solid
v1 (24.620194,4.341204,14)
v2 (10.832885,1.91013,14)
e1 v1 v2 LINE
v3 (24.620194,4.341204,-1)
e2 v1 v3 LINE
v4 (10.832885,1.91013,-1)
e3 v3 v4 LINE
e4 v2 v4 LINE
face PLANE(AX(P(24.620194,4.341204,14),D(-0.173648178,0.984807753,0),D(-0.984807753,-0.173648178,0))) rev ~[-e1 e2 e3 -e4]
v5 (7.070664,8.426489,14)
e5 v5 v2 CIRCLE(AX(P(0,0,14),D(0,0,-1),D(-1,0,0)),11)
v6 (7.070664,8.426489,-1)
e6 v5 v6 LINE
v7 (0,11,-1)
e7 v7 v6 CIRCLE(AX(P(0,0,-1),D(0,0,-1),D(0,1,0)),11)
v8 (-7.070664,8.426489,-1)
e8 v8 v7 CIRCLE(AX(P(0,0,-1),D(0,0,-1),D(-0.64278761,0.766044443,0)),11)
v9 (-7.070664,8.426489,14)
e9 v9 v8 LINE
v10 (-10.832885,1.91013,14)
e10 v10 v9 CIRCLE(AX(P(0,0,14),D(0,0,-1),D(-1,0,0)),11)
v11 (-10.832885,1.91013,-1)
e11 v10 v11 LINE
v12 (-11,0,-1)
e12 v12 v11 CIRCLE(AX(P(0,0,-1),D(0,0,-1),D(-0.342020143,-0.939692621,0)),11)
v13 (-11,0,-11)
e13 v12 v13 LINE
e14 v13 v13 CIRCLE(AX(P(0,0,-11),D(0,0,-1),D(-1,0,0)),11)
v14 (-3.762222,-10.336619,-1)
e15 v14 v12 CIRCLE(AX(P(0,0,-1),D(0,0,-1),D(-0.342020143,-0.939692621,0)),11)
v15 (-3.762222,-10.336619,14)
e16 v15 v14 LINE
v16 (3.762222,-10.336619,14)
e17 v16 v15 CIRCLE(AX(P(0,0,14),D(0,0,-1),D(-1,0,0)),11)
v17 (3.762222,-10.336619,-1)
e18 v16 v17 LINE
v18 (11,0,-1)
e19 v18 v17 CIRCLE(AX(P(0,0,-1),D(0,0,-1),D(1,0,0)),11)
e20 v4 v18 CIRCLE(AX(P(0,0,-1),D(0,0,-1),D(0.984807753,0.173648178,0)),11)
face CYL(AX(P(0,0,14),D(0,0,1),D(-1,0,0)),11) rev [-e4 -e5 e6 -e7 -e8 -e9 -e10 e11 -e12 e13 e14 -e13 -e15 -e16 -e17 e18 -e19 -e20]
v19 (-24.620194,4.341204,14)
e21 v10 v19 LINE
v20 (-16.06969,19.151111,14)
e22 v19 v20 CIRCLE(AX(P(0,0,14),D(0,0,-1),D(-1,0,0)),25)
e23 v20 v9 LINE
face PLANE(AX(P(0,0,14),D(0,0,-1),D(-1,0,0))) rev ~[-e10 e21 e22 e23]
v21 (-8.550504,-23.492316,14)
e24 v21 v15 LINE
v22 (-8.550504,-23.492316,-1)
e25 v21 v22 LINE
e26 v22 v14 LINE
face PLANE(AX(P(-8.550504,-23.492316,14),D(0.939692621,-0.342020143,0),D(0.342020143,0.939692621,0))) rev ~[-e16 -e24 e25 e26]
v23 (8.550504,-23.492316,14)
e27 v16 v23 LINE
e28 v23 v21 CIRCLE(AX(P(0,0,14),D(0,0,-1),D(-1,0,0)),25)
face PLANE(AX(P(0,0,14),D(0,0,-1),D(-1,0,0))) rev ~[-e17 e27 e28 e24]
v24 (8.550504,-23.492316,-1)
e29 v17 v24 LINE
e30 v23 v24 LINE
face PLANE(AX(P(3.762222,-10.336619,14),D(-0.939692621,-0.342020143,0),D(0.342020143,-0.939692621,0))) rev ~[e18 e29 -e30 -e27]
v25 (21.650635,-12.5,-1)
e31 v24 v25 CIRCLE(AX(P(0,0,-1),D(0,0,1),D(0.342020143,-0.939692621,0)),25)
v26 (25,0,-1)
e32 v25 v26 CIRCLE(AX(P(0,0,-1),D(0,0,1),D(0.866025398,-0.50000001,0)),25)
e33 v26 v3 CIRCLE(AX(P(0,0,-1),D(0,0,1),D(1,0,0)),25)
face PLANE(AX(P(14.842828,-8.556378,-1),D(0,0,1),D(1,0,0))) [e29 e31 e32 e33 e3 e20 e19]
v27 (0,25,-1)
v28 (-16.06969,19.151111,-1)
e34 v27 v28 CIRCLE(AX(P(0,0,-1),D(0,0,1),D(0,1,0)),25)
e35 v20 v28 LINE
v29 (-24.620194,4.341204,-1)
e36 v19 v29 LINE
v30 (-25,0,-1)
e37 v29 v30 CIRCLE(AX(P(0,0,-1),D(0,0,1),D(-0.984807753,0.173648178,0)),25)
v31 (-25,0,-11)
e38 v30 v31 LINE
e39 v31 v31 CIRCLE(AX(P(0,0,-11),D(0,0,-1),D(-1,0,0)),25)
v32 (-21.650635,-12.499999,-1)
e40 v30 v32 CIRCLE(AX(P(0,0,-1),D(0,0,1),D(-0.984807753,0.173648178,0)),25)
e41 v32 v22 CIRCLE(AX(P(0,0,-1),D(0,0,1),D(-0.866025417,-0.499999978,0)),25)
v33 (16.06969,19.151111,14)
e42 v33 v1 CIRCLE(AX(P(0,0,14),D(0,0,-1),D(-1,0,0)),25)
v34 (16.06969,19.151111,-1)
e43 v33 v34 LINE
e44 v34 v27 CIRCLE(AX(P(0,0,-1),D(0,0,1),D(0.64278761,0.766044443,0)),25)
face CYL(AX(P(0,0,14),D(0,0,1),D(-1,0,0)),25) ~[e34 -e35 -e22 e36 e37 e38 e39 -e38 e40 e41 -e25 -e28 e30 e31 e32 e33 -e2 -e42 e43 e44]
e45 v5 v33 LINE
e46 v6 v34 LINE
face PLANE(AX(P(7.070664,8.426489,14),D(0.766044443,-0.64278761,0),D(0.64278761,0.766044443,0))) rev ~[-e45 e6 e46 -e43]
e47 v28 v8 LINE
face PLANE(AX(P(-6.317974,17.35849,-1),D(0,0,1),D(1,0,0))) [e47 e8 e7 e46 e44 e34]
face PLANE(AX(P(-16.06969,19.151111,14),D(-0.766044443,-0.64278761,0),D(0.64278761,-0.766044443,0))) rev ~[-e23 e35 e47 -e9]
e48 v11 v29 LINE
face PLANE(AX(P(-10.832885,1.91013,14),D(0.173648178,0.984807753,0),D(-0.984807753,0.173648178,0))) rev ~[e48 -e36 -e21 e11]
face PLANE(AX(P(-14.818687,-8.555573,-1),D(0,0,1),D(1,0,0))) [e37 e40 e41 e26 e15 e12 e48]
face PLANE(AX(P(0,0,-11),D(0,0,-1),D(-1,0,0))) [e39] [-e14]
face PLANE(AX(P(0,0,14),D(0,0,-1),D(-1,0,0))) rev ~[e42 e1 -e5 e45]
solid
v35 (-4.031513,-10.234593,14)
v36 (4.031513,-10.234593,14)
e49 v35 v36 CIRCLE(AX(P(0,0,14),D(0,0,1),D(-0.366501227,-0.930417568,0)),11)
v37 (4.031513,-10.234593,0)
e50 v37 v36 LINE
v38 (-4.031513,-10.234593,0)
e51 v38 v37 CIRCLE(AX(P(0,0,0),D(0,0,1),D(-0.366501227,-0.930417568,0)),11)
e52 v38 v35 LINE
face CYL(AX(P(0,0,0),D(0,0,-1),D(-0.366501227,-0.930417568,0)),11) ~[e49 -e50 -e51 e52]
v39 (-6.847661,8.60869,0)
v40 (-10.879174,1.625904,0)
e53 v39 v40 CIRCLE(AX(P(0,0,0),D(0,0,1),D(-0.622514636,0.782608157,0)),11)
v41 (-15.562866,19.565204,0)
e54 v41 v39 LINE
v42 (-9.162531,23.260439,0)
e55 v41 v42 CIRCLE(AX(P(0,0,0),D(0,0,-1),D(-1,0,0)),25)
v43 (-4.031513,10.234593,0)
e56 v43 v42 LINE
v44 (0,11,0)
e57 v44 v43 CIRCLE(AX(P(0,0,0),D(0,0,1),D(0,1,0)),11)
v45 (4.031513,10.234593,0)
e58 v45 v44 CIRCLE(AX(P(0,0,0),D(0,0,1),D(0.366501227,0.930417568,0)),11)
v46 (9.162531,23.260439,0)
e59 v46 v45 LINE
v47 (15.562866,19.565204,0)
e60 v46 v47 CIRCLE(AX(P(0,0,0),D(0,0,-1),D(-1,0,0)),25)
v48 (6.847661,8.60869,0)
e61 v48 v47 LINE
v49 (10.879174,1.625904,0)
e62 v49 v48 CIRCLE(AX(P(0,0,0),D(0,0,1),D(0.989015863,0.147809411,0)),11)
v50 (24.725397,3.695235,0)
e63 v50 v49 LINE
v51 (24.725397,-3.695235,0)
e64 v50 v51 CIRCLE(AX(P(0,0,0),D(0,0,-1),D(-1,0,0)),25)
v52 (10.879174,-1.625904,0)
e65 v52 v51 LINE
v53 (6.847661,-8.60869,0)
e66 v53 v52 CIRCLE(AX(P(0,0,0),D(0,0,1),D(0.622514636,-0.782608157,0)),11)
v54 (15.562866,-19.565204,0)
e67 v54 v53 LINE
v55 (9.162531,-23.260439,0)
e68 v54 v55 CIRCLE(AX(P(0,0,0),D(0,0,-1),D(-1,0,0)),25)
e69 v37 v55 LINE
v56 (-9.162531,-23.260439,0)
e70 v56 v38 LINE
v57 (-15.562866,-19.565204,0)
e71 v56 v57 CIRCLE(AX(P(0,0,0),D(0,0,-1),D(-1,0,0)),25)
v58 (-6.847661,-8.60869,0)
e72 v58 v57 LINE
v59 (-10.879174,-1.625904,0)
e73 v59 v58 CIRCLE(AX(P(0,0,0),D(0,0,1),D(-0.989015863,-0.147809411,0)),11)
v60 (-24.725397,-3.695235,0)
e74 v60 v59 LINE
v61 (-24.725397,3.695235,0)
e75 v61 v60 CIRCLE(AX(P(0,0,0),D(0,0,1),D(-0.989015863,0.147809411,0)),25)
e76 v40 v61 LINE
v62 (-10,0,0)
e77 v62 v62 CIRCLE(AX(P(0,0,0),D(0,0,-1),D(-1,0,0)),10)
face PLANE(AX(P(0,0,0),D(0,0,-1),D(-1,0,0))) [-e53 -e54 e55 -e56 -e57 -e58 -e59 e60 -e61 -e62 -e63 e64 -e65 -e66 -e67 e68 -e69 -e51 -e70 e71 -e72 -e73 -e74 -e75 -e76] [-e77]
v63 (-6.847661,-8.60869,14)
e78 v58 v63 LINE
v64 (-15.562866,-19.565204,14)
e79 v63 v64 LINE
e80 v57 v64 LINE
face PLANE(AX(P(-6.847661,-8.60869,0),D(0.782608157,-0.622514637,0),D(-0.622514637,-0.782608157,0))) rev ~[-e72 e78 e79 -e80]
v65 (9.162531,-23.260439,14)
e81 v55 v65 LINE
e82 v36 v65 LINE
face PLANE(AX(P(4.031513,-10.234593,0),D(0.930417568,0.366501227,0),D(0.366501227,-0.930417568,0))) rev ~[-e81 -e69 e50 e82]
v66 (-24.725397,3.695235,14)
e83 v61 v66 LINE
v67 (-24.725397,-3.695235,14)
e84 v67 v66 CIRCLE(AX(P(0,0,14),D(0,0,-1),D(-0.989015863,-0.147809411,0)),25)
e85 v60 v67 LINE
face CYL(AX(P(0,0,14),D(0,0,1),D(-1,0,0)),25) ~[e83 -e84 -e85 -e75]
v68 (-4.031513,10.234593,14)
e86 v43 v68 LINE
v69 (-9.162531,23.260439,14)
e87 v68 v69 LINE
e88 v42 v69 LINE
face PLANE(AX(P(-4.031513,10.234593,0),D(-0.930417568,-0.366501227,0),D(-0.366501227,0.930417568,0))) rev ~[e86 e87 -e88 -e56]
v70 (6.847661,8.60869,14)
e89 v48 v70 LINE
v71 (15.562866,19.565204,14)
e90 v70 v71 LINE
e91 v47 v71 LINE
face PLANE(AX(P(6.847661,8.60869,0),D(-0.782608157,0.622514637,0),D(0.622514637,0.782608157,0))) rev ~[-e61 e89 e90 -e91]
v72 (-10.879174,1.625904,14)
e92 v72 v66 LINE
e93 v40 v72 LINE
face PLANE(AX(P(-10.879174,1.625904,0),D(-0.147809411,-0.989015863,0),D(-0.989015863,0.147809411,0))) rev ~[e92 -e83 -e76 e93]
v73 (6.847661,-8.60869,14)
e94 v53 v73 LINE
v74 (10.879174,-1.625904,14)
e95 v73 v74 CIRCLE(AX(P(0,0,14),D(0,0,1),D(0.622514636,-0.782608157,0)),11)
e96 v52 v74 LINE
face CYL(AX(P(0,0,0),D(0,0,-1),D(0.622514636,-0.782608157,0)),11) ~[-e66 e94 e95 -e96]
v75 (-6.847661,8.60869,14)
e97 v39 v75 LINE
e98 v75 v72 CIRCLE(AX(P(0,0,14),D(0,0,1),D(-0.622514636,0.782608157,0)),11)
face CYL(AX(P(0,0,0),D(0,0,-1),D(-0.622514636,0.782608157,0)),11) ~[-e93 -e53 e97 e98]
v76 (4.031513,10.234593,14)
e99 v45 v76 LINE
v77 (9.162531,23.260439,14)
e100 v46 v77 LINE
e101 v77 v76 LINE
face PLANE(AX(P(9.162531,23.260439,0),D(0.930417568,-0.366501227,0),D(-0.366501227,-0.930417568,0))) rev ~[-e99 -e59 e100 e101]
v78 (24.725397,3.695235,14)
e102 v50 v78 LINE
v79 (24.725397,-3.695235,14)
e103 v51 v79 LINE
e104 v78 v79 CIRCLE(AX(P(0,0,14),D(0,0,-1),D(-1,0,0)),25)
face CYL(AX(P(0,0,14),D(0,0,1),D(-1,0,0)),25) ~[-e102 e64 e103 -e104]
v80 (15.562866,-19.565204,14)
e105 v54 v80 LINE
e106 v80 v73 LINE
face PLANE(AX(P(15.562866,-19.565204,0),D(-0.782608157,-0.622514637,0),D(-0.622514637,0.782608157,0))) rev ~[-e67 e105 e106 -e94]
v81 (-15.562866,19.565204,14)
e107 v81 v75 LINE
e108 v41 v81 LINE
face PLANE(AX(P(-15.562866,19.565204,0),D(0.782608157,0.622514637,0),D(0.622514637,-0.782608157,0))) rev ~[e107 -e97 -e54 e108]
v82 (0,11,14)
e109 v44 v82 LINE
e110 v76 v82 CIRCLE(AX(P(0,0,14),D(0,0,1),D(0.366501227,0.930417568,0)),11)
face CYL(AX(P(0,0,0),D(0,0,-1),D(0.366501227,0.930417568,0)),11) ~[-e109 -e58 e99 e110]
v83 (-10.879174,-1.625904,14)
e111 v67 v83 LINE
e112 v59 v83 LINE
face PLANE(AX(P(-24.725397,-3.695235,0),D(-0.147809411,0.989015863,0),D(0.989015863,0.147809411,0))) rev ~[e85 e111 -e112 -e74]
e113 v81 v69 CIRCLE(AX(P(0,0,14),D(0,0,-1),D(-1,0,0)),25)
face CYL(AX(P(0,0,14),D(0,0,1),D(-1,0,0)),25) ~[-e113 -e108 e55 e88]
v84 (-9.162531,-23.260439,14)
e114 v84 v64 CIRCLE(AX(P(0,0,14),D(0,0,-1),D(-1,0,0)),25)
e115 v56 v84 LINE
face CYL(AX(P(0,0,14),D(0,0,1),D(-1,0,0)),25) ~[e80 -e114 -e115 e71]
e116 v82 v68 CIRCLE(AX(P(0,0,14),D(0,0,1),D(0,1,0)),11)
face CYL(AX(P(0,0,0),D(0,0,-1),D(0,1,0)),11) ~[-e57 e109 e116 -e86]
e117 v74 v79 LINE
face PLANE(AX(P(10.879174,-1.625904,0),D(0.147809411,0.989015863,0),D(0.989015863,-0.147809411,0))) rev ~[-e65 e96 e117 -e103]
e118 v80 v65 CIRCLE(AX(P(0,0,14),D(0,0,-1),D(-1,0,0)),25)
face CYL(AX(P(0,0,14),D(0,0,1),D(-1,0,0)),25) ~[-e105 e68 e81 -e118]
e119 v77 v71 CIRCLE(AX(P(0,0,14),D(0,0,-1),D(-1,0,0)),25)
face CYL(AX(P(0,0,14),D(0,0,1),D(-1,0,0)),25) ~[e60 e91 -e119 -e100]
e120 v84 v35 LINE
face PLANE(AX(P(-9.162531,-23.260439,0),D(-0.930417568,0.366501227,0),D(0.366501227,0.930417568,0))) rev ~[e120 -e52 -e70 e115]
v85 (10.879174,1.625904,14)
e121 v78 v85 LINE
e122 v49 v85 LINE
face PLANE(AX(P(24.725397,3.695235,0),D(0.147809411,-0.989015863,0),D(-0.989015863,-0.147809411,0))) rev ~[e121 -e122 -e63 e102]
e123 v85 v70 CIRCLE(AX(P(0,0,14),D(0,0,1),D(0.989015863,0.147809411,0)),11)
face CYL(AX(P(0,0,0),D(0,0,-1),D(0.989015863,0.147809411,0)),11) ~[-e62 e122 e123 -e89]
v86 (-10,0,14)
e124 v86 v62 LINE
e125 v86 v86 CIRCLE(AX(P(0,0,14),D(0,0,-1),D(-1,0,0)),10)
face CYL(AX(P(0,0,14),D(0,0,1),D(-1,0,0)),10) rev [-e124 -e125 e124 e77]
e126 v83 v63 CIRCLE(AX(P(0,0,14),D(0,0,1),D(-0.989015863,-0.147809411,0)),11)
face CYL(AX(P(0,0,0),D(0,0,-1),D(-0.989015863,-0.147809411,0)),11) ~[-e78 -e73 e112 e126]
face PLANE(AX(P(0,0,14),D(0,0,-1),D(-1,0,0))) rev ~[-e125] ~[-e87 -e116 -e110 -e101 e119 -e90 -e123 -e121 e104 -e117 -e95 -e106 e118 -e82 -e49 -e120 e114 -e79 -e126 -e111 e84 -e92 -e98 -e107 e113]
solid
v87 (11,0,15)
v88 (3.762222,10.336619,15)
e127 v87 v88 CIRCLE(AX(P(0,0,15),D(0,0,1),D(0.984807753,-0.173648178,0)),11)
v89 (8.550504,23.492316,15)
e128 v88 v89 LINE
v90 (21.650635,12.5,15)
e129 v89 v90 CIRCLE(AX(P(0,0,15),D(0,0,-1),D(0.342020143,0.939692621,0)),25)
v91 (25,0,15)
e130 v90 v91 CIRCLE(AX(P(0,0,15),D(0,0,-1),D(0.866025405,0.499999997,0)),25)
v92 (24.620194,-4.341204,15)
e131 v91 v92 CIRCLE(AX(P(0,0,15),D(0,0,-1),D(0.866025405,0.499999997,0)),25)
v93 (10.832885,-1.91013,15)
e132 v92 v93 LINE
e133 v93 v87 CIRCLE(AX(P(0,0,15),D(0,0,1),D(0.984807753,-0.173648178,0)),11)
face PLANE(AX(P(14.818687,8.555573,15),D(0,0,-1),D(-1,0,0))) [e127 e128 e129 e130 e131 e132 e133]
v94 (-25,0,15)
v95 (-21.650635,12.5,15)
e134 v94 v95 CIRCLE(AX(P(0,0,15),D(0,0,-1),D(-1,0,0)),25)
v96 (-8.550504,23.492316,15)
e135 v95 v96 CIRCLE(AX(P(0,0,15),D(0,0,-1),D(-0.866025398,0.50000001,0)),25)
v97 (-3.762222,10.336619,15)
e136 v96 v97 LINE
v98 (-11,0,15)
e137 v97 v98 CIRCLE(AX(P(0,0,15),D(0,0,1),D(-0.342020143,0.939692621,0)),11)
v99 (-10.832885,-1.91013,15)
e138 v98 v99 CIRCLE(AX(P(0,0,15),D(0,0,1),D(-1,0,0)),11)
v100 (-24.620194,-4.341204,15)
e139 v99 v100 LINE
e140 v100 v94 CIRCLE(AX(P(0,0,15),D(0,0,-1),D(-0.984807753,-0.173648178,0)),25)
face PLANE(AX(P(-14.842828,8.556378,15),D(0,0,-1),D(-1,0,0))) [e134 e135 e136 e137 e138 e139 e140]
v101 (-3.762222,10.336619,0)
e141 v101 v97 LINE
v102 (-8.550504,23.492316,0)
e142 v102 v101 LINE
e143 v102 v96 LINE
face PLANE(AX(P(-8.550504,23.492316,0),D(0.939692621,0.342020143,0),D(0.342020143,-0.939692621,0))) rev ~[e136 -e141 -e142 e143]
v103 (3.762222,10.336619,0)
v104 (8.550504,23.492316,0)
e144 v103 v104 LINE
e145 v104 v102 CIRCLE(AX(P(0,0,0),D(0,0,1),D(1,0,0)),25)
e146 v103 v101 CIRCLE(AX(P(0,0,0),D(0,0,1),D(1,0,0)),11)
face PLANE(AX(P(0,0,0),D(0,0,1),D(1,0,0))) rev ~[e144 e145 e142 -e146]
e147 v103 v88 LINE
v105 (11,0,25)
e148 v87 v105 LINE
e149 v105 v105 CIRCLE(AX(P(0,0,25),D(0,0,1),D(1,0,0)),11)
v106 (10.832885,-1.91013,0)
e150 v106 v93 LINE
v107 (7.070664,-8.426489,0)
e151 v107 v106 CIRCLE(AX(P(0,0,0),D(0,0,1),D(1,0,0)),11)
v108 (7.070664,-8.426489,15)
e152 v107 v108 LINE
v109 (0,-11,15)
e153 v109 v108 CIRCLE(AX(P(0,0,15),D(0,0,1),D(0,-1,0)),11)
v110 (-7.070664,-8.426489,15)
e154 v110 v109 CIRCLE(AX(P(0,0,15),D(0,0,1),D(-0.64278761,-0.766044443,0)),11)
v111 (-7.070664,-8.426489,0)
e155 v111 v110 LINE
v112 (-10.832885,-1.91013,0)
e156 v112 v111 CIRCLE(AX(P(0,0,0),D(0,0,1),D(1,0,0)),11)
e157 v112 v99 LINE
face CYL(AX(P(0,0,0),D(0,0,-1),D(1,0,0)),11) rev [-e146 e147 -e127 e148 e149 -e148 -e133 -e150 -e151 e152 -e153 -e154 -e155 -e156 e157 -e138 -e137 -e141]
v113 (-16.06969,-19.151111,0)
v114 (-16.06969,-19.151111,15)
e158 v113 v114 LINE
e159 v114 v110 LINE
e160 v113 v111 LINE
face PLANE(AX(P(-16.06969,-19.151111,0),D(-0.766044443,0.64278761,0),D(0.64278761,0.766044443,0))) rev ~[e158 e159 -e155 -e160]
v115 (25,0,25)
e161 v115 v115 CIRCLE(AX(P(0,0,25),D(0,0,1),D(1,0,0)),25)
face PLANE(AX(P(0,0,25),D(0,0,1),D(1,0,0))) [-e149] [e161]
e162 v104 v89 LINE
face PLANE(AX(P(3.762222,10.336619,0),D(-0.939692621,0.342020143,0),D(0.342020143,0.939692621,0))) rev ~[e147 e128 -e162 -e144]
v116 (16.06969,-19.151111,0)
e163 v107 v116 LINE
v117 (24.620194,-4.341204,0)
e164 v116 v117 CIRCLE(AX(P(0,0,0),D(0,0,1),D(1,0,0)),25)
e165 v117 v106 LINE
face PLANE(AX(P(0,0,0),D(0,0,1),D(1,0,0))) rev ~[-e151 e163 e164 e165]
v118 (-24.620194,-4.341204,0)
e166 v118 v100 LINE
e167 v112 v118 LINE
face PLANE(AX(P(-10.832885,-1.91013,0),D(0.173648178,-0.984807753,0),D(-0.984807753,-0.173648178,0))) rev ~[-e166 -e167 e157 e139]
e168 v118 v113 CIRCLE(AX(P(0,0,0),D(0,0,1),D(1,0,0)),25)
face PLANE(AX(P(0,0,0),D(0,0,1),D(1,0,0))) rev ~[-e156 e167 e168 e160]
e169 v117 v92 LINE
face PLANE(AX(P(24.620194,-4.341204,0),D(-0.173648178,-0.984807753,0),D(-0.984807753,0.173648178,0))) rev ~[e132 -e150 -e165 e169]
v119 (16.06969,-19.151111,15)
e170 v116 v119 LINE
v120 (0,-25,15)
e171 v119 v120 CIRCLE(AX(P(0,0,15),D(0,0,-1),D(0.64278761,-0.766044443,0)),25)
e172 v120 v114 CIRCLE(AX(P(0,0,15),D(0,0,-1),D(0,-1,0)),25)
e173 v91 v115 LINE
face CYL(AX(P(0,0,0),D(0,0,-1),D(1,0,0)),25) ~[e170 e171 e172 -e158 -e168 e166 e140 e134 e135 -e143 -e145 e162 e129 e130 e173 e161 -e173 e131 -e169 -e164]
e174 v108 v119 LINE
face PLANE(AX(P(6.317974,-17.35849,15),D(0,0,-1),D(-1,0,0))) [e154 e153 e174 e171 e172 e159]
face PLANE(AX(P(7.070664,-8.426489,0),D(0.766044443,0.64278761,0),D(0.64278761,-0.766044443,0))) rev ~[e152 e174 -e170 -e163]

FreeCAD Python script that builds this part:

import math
import FreeCAD as App
import Part
import Sketcher
from FreeCAD import Vector
Q = App.Units.Quantity

doc = App.newDocument("Part")
body = doc.addObject("PartDesign::Body", "Body")

sketch1 = body.newObject("Sketcher::SketchObject", "Sketch")
sketch1.AttachmentSupport = (doc.getObject("XY_Plane"), [""])
sketch1.MapMode = "FlatFace"
sketch1.addGeometry([
    Part.Circle(Vector(0, 0, 0), Vector(0, 0, 1), 25),
    Part.Circle(Vector(0, 0, 0), Vector(0, 0, 1), 11),
], False)
sketch1.addConstraint([
    Sketcher.Constraint("Coincident", 0, 3, -1, 1),
    Sketcher.Constraint("Coincident", 1, 3, -1, 1),
    Sketcher.Constraint("Diameter", 0, Q("50 mm")),
    Sketcher.Constraint("Diameter", 1, Q("22 mm")),
])
pad1 = body.newObject("PartDesign::Pad", "Pad")
pad1.Profile = sketch1
pad1.Length = 25

sketch2 = body.newObject("Sketcher::SketchObject", "Sketch001")
sketch2.AttachmentSupport = (doc.getObject("XY_Plane"), [""])
sketch2.MapMode = "FlatFace"
sketch2.addGeometry([
    Part.LineSegment(Vector(24.6, -4.3, 0), Vector(10.8, -1.9, 0)),
    Part.ArcOfCircle(Part.Circle(Vector(0, 0, 0), Vector(0, 0, 1), 11), math.radians(-10), math.radians(70)),
    Part.LineSegment(Vector(3.8, 10.3, 0), Vector(8.6, 23.5, 0)),
    Part.ArcOfCircle(Part.Circle(Vector(0, 0, 0), Vector(0, 0, 1), 25), math.radians(30), math.radians(70)),
    Part.ArcOfCircle(Part.Circle(Vector(0, 0, 0), Vector(0, 0, 1), 25), math.radians(-10), math.radians(30)),
    Part.LineSegment(Vector(-8.6, 23.5, 0), Vector(-3.8, 10.3, 0)),
    Part.ArcOfCircle(Part.Circle(Vector(0, 0, 0), Vector(0, 0, 1), 11), math.radians(110), math.radians(180)),
    Part.ArcOfCircle(Part.Circle(Vector(0, 0, 0), Vector(0, 0, 1), 11), math.radians(180), math.radians(190)),
    Part.LineSegment(Vector(-10.8, -1.9, 0), Vector(-24.6, -4.3, 0)),
    Part.ArcOfCircle(Part.Circle(Vector(0, 0, 0), Vector(0, 0, 1), 25), math.radians(-180), math.radians(-170)),
    Part.ArcOfCircle(Part.Circle(Vector(0, 0, 0), Vector(0, 0, 1), 25), math.radians(150), math.radians(180)),
    Part.ArcOfCircle(Part.Circle(Vector(0, 0, 0), Vector(0, 0, 1), 25), math.radians(110), math.radians(150)),
    Part.ArcOfCircle(Part.Circle(Vector(0, 0, 0), Vector(0, 0, 1), 11), math.radians(-90), math.radians(-50)),
    Part.LineSegment(Vector(7.1, -8.4, 0), Vector(16.1, -19.2, 0)),
    Part.ArcOfCircle(Part.Circle(Vector(0, 0, 0), Vector(0, 0, 1), 25), math.radians(-90), math.radians(-50)),
    Part.ArcOfCircle(Part.Circle(Vector(0, 0, 0), Vector(0, 0, 1), 25), math.radians(-130), math.radians(-90)),
    Part.LineSegment(Vector(-16.1, -19.2, 0), Vector(-7.1, -8.4, 0)),
    Part.ArcOfCircle(Part.Circle(Vector(0, 0, 0), Vector(0, 0, 1), 11), math.radians(-130), math.radians(-90)),
], False)
sketch2.addConstraint([
    Sketcher.Constraint("Coincident", 0, 2, 1, 1),
    Sketcher.Constraint("Coincident", 1, 2, 2, 1),
    Sketcher.Constraint("Coincident", 2, 2, 3, 2),
    Sketcher.Constraint("Tangent", 3, 1, 4, 2),
    Sketcher.Constraint("Coincident", 4, 1, 0, 1),
    Sketcher.Constraint("Coincident", 5, 2, 6, 1),
    Sketcher.Constraint("Tangent", 6, 2, 7, 1),
    Sketcher.Constraint("Coincident", 7, 2, 8, 1),
    Sketcher.Constraint("Coincident", 8, 2, 9, 2),
    Sketcher.Constraint("Tangent", 9, 1, 10, 2),
    Sketcher.Constraint("Tangent", 10, 1, 11, 2),
    Sketcher.Constraint("Coincident", 11, 1, 5, 1),
    Sketcher.Constraint("Coincident", 12, 2, 13, 1),
    Sketcher.Constraint("Coincident", 13, 2, 14, 2),
    Sketcher.Constraint("Tangent", 14, 1, 15, 2),
    Sketcher.Constraint("Coincident", 15, 1, 16, 1),
    Sketcher.Constraint("Coincident", 16, 2, 17, 1),
    Sketcher.Constraint("Tangent", 17, 2, 12, 1),
    Sketcher.Constraint("Coincident", 1, 3, -1, 1),
    Sketcher.Constraint("Coincident", 3, 3, -1, 1),
    Sketcher.Constraint("Coincident", 6, 3, -1, 1),
    Sketcher.Constraint("Coincident", 9, 3, -1, 1),
    Sketcher.Constraint("Coincident", 11, 3, -1, 1),
    Sketcher.Constraint("Coincident", 12, 3, -1, 1),
    Sketcher.Constraint("Coincident", 14, 3, -1, 1),
    Sketcher.Constraint("Equal", 3, 4),
    Sketcher.Constraint("Equal", 1, 6),
    Sketcher.Constraint("Equal", 6, 7),
    Sketcher.Constraint("Equal", 4, 9),
    Sketcher.Constraint("Equal", 7, 12),
    Sketcher.Constraint("Equal", 11, 14),
    Sketcher.Constraint("Equal", 14, 15),
    Sketcher.Constraint("Equal", 12, 17),
    Sketcher.Constraint("PointOnObject", 6, 2, -1),
    Sketcher.Constraint("PointOnObject", 9, 1, -1),
    Sketcher.Constraint("PointOnObject", 14, 1, -2),
    Sketcher.Constraint("PointOnObject", 17, 2, -2),
    Sketcher.Constraint("Horizontal", 1, 2, 5, 2),
    Sketcher.Constraint("Horizontal", 0, 2, 7, 2),
    Sketcher.Constraint("Horizontal", 4, 1, 8, 2),
    Sketcher.Constraint("Horizontal", 3, 1, 10, 1),
    Sketcher.Constraint("Horizontal", 2, 2, 11, 1),
    Sketcher.Constraint("Horizontal", 13, 2, 15, 1),
    Sketcher.Constraint("Horizontal", 12, 2, 16, 2),
    Sketcher.Constraint("Radius", 1, Q("11 mm")),
    Sketcher.Constraint("Radius", 3, Q("25 mm")),
    Sketcher.Constraint("Angle", 0, Q("170 deg")),
    Sketcher.Constraint("Angle", 2, Q("70 deg")),
    Sketcher.Constraint("Angle", 13, Q("-50 deg")),
    Sketcher.Constraint("DistanceY", -1, 1, 3, 1, Q("12.5 mm")),
    Sketcher.Constraint("DistanceY", 0, 2, -1, 1, Q("1.91013 mm")),
    Sketcher.Constraint("DistanceX", -1, 1, 1, 2, Q("3.762222 mm")),
    Sketcher.Constraint("DistanceY", 12, 2, -1, 1, Q("8.426489 mm")),
])
pocket1 = body.newObject("PartDesign::Pocket", "Pocket")
pocket1.Profile = sketch2
pocket1.Length = 15
pocket1.Reversed = True
body2 = doc.addObject("PartDesign::Body", "Body001")

sketch3 = body2.newObject("Sketcher::SketchObject", "Sketch002")
sketch3.AttachmentSupport = (doc.getObject("XY_Plane001"), [""])
sketch3.MapMode = "FlatFace"
sketch3.AttachmentOffset = App.Placement(Vector(0, 0, 14), App.Rotation())
sketch3.addGeometry([
    Part.Circle(Vector(0, 0, 0), Vector(0, 0, 1), 25),
    Part.Circle(Vector(0, 0, 0), Vector(0, 0, 1), 11),
], False)
sketch3.addConstraint([
    Sketcher.Constraint("Coincident", 0, 3, -1, 1),
    Sketcher.Constraint("Coincident", 1, 3, -1, 1),
    Sketcher.Constraint("Diameter", 0, Q("50 mm")),
    Sketcher.Constraint("Diameter", 1, Q("22 mm")),
])
pad2 = body2.newObject("PartDesign::Pad", "Pad001")
pad2.Profile = sketch3
pad2.Length = 25
pad2.Reversed = True

sketch4 = body2.newObject("Sketcher::SketchObject", "Sketch003")
sketch4.AttachmentSupport = (doc.getObject("XY_Plane001"), [""])
sketch4.MapMode = "FlatFace"
sketch4.AttachmentOffset = App.Placement(Vector(0, 0, 14), App.Rotation())
sketch4.addGeometry([
    Part.LineSegment(Vector(-16.1, 19.2, 0), Vector(-7.1, 8.4, 0)),
    Part.ArcOfCircle(Part.Circle(Vector(0, 0, 0), Vector(0, 0, 1), 11), math.radians(90), math.radians(130)),
    Part.ArcOfCircle(Part.Circle(Vector(0, 0, 0), Vector(0, 0, 1), 11), math.radians(50), math.radians(90)),
    Part.LineSegment(Vector(7.1, 8.4, 0), Vector(16.1, 19.2, 0)),
    Part.ArcOfCircle(Part.Circle(Vector(0, 0, 0), Vector(0, 0, 1), 25), math.radians(50), math.radians(90)),
    Part.ArcOfCircle(Part.Circle(Vector(0, 0, 0), Vector(0, 0, 1), 25), math.radians(90), math.radians(130)),
    Part.LineSegment(Vector(24.6, 4.3, 0), Vector(10.8, 1.9, 0)),
    Part.ArcOfCircle(Part.Circle(Vector(0, 0, 0), Vector(0, 0, 1), 11), math.radians(0), math.radians(10)),
    Part.ArcOfCircle(Part.Circle(Vector(0, 0, 0), Vector(0, 0, 1), 11), math.radians(-70), math.radians(0)),
    Part.LineSegment(Vector(3.8, -10.3, 0), Vector(8.6, -23.5, 0)),
    Part.ArcOfCircle(Part.Circle(Vector(0, 0, 0), Vector(0, 0, 1), 25), math.radians(-70), math.radians(-30)),
    Part.ArcOfCircle(Part.Circle(Vector(0, 0, 0), Vector(0, 0, 1), 25), math.radians(-30), math.radians(0)),
    Part.ArcOfCircle(Part.Circle(Vector(0, 0, 0), Vector(0, 0, 1), 25), math.radians(0), math.radians(10)),
    Part.LineSegment(Vector(-8.6, -23.5, 0), Vector(-3.8, -10.3, 0)),
    Part.ArcOfCircle(Part.Circle(Vector(0, 0, 0), Vector(0, 0, 1), 11), math.radians(170), math.radians(250)),
    Part.LineSegment(Vector(-10.8, 1.9, 0), Vector(-24.6, 4.3, 0)),
    Part.ArcOfCircle(Part.Circle(Vector(0, 0, 0), Vector(0, 0, 1), 25), math.radians(170), math.radians(210)),
    Part.ArcOfCircle(Part.Circle(Vector(0, 0, 0), Vector(0, 0, 1), 25), math.radians(-150), math.radians(-110)),
], False)
sketch4.addConstraint([
    Sketcher.Constraint("Coincident", 0, 2, 1, 2),
    Sketcher.Constraint("Tangent", 1, 1, 2, 2),
    Sketcher.Constraint("Coincident", 2, 1, 3, 1),
    Sketcher.Constraint("Coincident", 3, 2, 4, 1),
    Sketcher.Constraint("Tangent", 4, 2, 5, 1),
    Sketcher.Constraint("Coincident", 5, 2, 0, 1),
    Sketcher.Constraint("Coincident", 6, 2, 7, 2),
    Sketcher.Constraint("Tangent", 7, 1, 8, 2),
    Sketcher.Constraint("Coincident", 8, 1, 9, 1),
    Sketcher.Constraint("Coincident", 9, 2, 10, 1),
    Sketcher.Constraint("Tangent", 10, 2, 11, 1),
    Sketcher.Constraint("Tangent", 11, 2, 12, 1),
    Sketcher.Constraint("Coincident", 12, 2, 6, 1),
    Sketcher.Constraint("Coincident", 13, 2, 14, 2),
    Sketcher.Constraint("Coincident", 14, 1, 15, 1),
    Sketcher.Constraint("Coincident", 15, 2, 16, 1),
    Sketcher.Constraint("Tangent", 16, 2, 17, 1),
    Sketcher.Constraint("Coincident", 17, 2, 13, 1),
    Sketcher.Constraint("Coincident", 1, 3, -1, 1),
    Sketcher.Constraint("Coincident", 4, 3, -1, 1),
    Sketcher.Constraint("Coincident", 7, 3, -1, 1),
    Sketcher.Constraint("Coincident", 10, 3, -1, 1),
    Sketcher.Constraint("Coincident", 12, 3, -1, 1),
    Sketcher.Constraint("Coincident", 14, 3, -1, 1),
    Sketcher.Constraint("Coincident", 16, 3, -1, 1),
    Sketcher.Constraint("Equal", 1, 2),
    Sketcher.Constraint("Equal", 4, 5),
    Sketcher.Constraint("Equal", 2, 7),
    Sketcher.Constraint("Equal", 7, 8),
    Sketcher.Constraint("Equal", 5, 10),
    Sketcher.Constraint("Equal", 8, 14),
    Sketcher.Constraint("Equal", 12, 16),
    Sketcher.Constraint("Equal", 16, 17),
    Sketcher.Constraint("PointOnObject", 1, 1, -2),
    Sketcher.Constraint("PointOnObject", 4, 2, -2),
    Sketcher.Constraint("PointOnObject", 7, 1, -1),
    Sketcher.Constraint("PointOnObject", 11, 2, -1),
    Sketcher.Constraint("Horizontal", 0, 2, 2, 1),
    Sketcher.Constraint("Horizontal", 3, 2, 5, 2),
    Sketcher.Constraint("Horizontal", 8, 1, 13, 2),
    Sketcher.Constraint("Horizontal", 6, 2, 14, 1),
    Sketcher.Constraint("Horizontal", 12, 2, 15, 2),
    Sketcher.Constraint("Horizontal", 10, 2, 16, 2),
    Sketcher.Constraint("Horizontal", 9, 2, 17, 2),
    Sketcher.Constraint("Radius", 1, Q("11 mm")),
    Sketcher.Constraint("Radius", 4, Q("25 mm")),
    Sketcher.Constraint("Angle", 0, Q("-50 deg")),
    Sketcher.Constraint("Angle", 6, Q("-170 deg")),
    Sketcher.Constraint("Angle", 9, Q("-70 deg")),
    Sketcher.Constraint("DistanceY", 10, 2, -1, 1, Q("12.5 mm")),
    Sketcher.Constraint("DistanceY", -1, 1, 0, 2, Q("8.426489 mm")),
    Sketcher.Constraint("DistanceY", -1, 1, 6, 2, Q("1.91013 mm")),
    Sketcher.Constraint("DistanceX", -1, 1, 8, 1, Q("3.762222 mm")),
])
pocket2 = body2.newObject("PartDesign::Pocket", "Pocket001")
pocket2.Profile = sketch4
pocket2.Length = 15
body3 = doc.addObject("PartDesign::Body", "Body002")

sketch5 = body3.newObject("Sketcher::SketchObject", "Sketch004")
sketch5.AttachmentSupport = (doc.getObject("XY_Plane002"), [""])
sketch5.MapMode = "FlatFace"
sketch5.AttachmentOffset = App.Placement(Vector(0, 0, 14), App.Rotation())
sketch5.addGeometry([
    Part.Circle(Vector(0, 0, 0), Vector(0, 0, 1), 25),
    Part.Circle(Vector(0, 0, 0), Vector(0, 0, 1), 10),
], False)
sketch5.addConstraint([
    Sketcher.Constraint("Coincident", 0, 3, -1, 1),
    Sketcher.Constraint("Coincident", 1, 3, -1, 1),
    Sketcher.Constraint("Diameter", 0, Q("50 mm")),
    Sketcher.Constraint("Diameter", 1, Q("20 mm")),
])
pad3 = body3.newObject("PartDesign::Pad", "Pad002")
pad3.Profile = sketch5
pad3.Length = 14
pad3.Reversed = True

sketch6 = body3.newObject("Sketcher::SketchObject", "Sketch005")
sketch6.AttachmentSupport = (doc.getObject("XY_Plane002"), [""])
sketch6.MapMode = "FlatFace"
sketch6.addGeometry([
    Part.LineSegment(Vector(24.7, 3.7, 0), Vector(10.9, 1.6, 0)),
    Part.ArcOfCircle(Part.Circle(Vector(0, 0, 0), Vector(0, 0, 1), 11), math.radians(8), math.radians(52)),
    Part.LineSegment(Vector(6.8, 8.6, 0), Vector(15.6, 19.6, 0)),
    Part.ArcOfCircle(Part.Circle(Vector(0, 0, 0), Vector(0, 0, 1), 25), math.radians(30), math.radians(52)),
    Part.ArcOfCircle(Part.Circle(Vector(0, 0, 0), Vector(0, 0, 1), 25), math.radians(8), math.radians(30)),
    Part.LineSegment(Vector(9.2, 23.3, 0), Vector(4, 10.2, 0)),
    Part.ArcOfCircle(Part.Circle(Vector(0, 0, 0), Vector(0, 0, 1), 11), math.radians(69), math.radians(90)),
    Part.ArcOfCircle(Part.Circle(Vector(0, 0, 0), Vector(0, 0, 1), 11), math.radians(90), math.radians(111)),
    Part.LineSegment(Vector(-4, 10.2, 0), Vector(-9.2, 23.3, 0)),
    Part.ArcOfCircle(Part.Circle(Vector(0, 0, 0), Vector(0, 0, 1), 25), math.radians(90), math.radians(111)),
    Part.ArcOfCircle(Part.Circle(Vector(0, 0, 0), Vector(0, 0, 1), 25), math.radians(69), math.radians(90)),
    Part.LineSegment(Vector(-15.6, 19.6, 0), Vector(-6.8, 8.6, 0)),
    Part.ArcOfCircle(Part.Circle(Vector(0, 0, 0), Vector(0, 0, 1), 11), math.radians(128), math.radians(172)),
    Part.LineSegment(Vector(-10.9, 1.6, 0), Vector(-24.7, 3.7, 0)),
    Part.ArcOfCircle(Part.Circle(Vector(0, 0, 0), Vector(0, 0, 1), 25), math.radians(150), math.radians(171)),
    Part.ArcOfCircle(Part.Circle(Vector(0, 0, 0), Vector(0, 0, 1), 25), math.radians(128), math.radians(150)),
    Part.LineSegment(Vector(-24.7, -3.7, 0), Vector(-10.9, -1.6, 0)),
    Part.ArcOfCircle(Part.Circle(Vector(0, 0, 0), Vector(0, 0, 1), 11), math.radians(-172), math.radians(-128)),
    Part.LineSegment(Vector(-6.8, -8.6, 0), Vector(-15.6, -19.6, 0)),
    Part.ArcOfCircle(Part.Circle(Vector(0, 0, 0), Vector(0, 0, 1), 25), math.radians(-150), math.radians(-128)),
    Part.ArcOfCircle(Part.Circle(Vector(0, 0, 0), Vector(0, 0, 1), 25), math.radians(-172), math.radians(-150)),
    Part.LineSegment(Vector(-9.2, -23.3, 0), Vector(-4, -10.2, 0)),
    Part.ArcOfCircle(Part.Circle(Vector(0, 0, 0), Vector(0, 0, 1), 11), math.radians(-111), math.radians(-69)),
    Part.LineSegment(Vector(4, -10.2, 0), Vector(9.2, -23.3, 0)),
    Part.ArcOfCircle(Part.Circle(Vector(0, 0, 0), Vector(0, 0, 1), 25), math.radians(-90), math.radians(-69)),
    Part.ArcOfCircle(Part.Circle(Vector(0, 0, 0), Vector(0, 0, 1), 25), math.radians(-111), math.radians(-90)),
    Part.LineSegment(Vector(15.6, -19.6, 0), Vector(6.8, -8.6, 0)),
    Part.ArcOfCircle(Part.Circle(Vector(0, 0, 0), Vector(0, 0, 1), 11), math.radians(-52), math.radians(-8)),
    Part.LineSegment(Vector(10.9, -1.6, 0), Vector(24.7, -3.7, 0)),
    Part.ArcOfCircle(Part.Circle(Vector(0, 0, 0), Vector(0, 0, 1), 25), math.radians(-30), math.radians(-8)),
    Part.ArcOfCircle(Part.Circle(Vector(0, 0, 0), Vector(0, 0, 1), 25), math.radians(-52), math.radians(-30)),
], False)
sketch6.addConstraint([
    Sketcher.Constraint("Coincident", 0, 2, 1, 1),
    Sketcher.Constraint("Coincident", 1, 2, 2, 1),
    Sketcher.Constraint("Coincident", 2, 2, 3, 2),
    Sketcher.Constraint("Tangent", 3, 1, 4, 2),
    Sketcher.Constraint("Coincident", 4, 1, 0, 1),
    Sketcher.Constraint("Coincident", 5, 2, 6, 1),
    Sketcher.Constraint("Tangent", 6, 2, 7, 1),
    Sketcher.Constraint("Coincident", 7, 2, 8, 1),
    Sketcher.Constraint("Coincident", 8, 2, 9, 2),
    Sketcher.Constraint("Tangent", 9, 1, 10, 2),
    Sketcher.Constraint("Coincident", 10, 1, 5, 1),
    Sketcher.Constraint("Coincident", 11, 2, 12, 1),
    Sketcher.Constraint("Coincident", 12, 2, 13, 1),
    Sketcher.Constraint("Coincident", 13, 2, 14, 2),
    Sketcher.Constraint("Tangent", 14, 1, 15, 2),
    Sketcher.Constraint("Coincident", 15, 1, 11, 1),
    Sketcher.Constraint("Coincident", 16, 2, 17, 1),
    Sketcher.Constraint("Coincident", 17, 2, 18, 1),
    Sketcher.Constraint("Coincident", 18, 2, 19, 2),
    Sketcher.Constraint("Tangent", 19, 1, 20, 2),
    Sketcher.Constraint("Coincident", 20, 1, 16, 1),
    Sketcher.Constraint("Coincident", 21, 2, 22, 1),
    Sketcher.Constraint("Coincident", 22, 2, 23, 1),
    Sketcher.Constraint("Coincident", 23, 2, 24, 2),
    Sketcher.Constraint("Tangent", 24, 1, 25, 2),
    Sketcher.Constraint("Coincident", 25, 1, 21, 1),
    Sketcher.Constraint("Coincident", 26, 2, 27, 1),
    Sketcher.Constraint("Coincident", 27, 2, 28, 1),
    Sketcher.Constraint("Coincident", 28, 2, 29, 2),
    Sketcher.Constraint("Tangent", 29, 1, 30, 2),
    Sketcher.Constraint("Coincident", 30, 1, 26, 1),
    Sketcher.Constraint("Coincident", 1, 3, -1, 1),
    Sketcher.Constraint("Coincident", 3, 3, -1, 1),
    Sketcher.Constraint("Coincident", 6, 3, -1, 1),
    Sketcher.Constraint("Coincident", 9, 3, -1, 1),
    Sketcher.Constraint("Coincident", 12, 3, -1, 1),
    Sketcher.Constraint("Coincident", 14, 3, -1, 1),
    Sketcher.Constraint("Coincident", 17, 3, -1, 1),
    Sketcher.Constraint("Coincident", 19, 3, -1, 1),
    Sketcher.Constraint("Coincident", 22, 3, -1, 1),
    Sketcher.Constraint("Coincident", 24, 3, -1, 1),
    Sketcher.Constraint("Coincident", 27, 3, -1, 1),
    Sketcher.Constraint("Coincident", 29, 3, -1, 1),
    Sketcher.Constraint("Equal", 3, 4),
    Sketcher.Constraint("Equal", 1, 6),
    Sketcher.Constraint("Equal", 6, 7),
    Sketcher.Constraint("Equal", 4, 9),
    Sketcher.Constraint("Equal", 9, 10),
    Sketcher.Constraint("Equal", 7, 12),
    Sketcher.Constraint("Equal", 10, 14),
    Sketcher.Constraint("Equal", 14, 15),
    Sketcher.Constraint("Equal", 12, 17),
    Sketcher.Constraint("Equal", 15, 19),
    Sketcher.Constraint("Equal", 19, 20),
    Sketcher.Constraint("Equal", 17, 22),
    Sketcher.Constraint("Equal", 20, 24),
    Sketcher.Constraint("Equal", 24, 25),
    Sketcher.Constraint("Equal", 22, 27),
    Sketcher.Constraint("Equal", 25, 29),
    Sketcher.Constraint("Equal", 29, 30),
    Sketcher.Constraint("PointOnObject", 6, 2, -2),
    Sketcher.Constraint("PointOnObject", 9, 1, -2),
    Sketcher.Constraint("PointOnObject", 24, 1, -2),
    Sketcher.Constraint("Parallel", 0, 16),
    Sketcher.Constraint("Parallel", 2, 18),
    Sketcher.Constraint("Parallel", 5, 21),
    Sketcher.Constraint("Parallel", 8, 23),
    Sketcher.Constraint("Parallel", 11, 26),
    Sketcher.Constraint("Parallel", 13, 28),
    Sketcher.Constraint("Horizontal", 5, 2, 7, 2),
    Sketcher.Constraint("Horizontal", 8, 2, 10, 1),
    Sketcher.Constraint("Horizontal", 1, 2, 11, 2),
    Sketcher.Constraint("Horizontal", 0, 2, 12, 2),
    Sketcher.Constraint("Horizontal", 4, 1, 13, 2),
    Sketcher.Constraint("Horizontal", 3, 1, 14, 1),
    Sketcher.Constraint("Horizontal", 2, 2, 15, 1),
    Sketcher.Constraint("Horizontal", 21, 2, 22, 2),
    Sketcher.Constraint("Horizontal", 17, 2, 26, 2),
    Sketcher.Constraint("Horizontal", 16, 2, 27, 2),
    Sketcher.Constraint("Horizontal", 19, 1, 29, 1),
    Sketcher.Constraint("Vertical", 12, 2, 16, 2),
    Sketcher.Constraint("Vertical", 11, 2, 17, 2),
    Sketcher.Constraint("Vertical", 14, 1, 19, 1),
    Sketcher.Constraint("Vertical", 7, 2, 21, 2),
    Sketcher.Constraint("Radius", 1, Q("11 mm")),
    Sketcher.Constraint("Radius", 3, Q("25 mm")),
    Sketcher.Constraint("Angle", 0, Q("-171.5 deg")),
    Sketcher.Constraint("Angle", 2, Q("51.5 deg")),
    Sketcher.Constraint("Angle", 5, Q("-111.5 deg")),
    Sketcher.Constraint("DistanceY", -1, 1, 3, 1, Q("12.5 mm")),
    Sketcher.Constraint("DistanceY", 0, 2, 2, 2, Q("17.9393 mm")),
    Sketcher.Constraint("DistanceX", -1, 1, 1, 2, Q("6.847661 mm")),
    Sketcher.Constraint("DistanceX", 8, 2, -1, 1, Q("9.162531 mm")),
])
pocket3 = body3.newObject("PartDesign::Pocket", "Pocket002")
pocket3.Profile = sketch6
pocket3.Length = 14
pocket3.Reversed = True

doc.recompute()
